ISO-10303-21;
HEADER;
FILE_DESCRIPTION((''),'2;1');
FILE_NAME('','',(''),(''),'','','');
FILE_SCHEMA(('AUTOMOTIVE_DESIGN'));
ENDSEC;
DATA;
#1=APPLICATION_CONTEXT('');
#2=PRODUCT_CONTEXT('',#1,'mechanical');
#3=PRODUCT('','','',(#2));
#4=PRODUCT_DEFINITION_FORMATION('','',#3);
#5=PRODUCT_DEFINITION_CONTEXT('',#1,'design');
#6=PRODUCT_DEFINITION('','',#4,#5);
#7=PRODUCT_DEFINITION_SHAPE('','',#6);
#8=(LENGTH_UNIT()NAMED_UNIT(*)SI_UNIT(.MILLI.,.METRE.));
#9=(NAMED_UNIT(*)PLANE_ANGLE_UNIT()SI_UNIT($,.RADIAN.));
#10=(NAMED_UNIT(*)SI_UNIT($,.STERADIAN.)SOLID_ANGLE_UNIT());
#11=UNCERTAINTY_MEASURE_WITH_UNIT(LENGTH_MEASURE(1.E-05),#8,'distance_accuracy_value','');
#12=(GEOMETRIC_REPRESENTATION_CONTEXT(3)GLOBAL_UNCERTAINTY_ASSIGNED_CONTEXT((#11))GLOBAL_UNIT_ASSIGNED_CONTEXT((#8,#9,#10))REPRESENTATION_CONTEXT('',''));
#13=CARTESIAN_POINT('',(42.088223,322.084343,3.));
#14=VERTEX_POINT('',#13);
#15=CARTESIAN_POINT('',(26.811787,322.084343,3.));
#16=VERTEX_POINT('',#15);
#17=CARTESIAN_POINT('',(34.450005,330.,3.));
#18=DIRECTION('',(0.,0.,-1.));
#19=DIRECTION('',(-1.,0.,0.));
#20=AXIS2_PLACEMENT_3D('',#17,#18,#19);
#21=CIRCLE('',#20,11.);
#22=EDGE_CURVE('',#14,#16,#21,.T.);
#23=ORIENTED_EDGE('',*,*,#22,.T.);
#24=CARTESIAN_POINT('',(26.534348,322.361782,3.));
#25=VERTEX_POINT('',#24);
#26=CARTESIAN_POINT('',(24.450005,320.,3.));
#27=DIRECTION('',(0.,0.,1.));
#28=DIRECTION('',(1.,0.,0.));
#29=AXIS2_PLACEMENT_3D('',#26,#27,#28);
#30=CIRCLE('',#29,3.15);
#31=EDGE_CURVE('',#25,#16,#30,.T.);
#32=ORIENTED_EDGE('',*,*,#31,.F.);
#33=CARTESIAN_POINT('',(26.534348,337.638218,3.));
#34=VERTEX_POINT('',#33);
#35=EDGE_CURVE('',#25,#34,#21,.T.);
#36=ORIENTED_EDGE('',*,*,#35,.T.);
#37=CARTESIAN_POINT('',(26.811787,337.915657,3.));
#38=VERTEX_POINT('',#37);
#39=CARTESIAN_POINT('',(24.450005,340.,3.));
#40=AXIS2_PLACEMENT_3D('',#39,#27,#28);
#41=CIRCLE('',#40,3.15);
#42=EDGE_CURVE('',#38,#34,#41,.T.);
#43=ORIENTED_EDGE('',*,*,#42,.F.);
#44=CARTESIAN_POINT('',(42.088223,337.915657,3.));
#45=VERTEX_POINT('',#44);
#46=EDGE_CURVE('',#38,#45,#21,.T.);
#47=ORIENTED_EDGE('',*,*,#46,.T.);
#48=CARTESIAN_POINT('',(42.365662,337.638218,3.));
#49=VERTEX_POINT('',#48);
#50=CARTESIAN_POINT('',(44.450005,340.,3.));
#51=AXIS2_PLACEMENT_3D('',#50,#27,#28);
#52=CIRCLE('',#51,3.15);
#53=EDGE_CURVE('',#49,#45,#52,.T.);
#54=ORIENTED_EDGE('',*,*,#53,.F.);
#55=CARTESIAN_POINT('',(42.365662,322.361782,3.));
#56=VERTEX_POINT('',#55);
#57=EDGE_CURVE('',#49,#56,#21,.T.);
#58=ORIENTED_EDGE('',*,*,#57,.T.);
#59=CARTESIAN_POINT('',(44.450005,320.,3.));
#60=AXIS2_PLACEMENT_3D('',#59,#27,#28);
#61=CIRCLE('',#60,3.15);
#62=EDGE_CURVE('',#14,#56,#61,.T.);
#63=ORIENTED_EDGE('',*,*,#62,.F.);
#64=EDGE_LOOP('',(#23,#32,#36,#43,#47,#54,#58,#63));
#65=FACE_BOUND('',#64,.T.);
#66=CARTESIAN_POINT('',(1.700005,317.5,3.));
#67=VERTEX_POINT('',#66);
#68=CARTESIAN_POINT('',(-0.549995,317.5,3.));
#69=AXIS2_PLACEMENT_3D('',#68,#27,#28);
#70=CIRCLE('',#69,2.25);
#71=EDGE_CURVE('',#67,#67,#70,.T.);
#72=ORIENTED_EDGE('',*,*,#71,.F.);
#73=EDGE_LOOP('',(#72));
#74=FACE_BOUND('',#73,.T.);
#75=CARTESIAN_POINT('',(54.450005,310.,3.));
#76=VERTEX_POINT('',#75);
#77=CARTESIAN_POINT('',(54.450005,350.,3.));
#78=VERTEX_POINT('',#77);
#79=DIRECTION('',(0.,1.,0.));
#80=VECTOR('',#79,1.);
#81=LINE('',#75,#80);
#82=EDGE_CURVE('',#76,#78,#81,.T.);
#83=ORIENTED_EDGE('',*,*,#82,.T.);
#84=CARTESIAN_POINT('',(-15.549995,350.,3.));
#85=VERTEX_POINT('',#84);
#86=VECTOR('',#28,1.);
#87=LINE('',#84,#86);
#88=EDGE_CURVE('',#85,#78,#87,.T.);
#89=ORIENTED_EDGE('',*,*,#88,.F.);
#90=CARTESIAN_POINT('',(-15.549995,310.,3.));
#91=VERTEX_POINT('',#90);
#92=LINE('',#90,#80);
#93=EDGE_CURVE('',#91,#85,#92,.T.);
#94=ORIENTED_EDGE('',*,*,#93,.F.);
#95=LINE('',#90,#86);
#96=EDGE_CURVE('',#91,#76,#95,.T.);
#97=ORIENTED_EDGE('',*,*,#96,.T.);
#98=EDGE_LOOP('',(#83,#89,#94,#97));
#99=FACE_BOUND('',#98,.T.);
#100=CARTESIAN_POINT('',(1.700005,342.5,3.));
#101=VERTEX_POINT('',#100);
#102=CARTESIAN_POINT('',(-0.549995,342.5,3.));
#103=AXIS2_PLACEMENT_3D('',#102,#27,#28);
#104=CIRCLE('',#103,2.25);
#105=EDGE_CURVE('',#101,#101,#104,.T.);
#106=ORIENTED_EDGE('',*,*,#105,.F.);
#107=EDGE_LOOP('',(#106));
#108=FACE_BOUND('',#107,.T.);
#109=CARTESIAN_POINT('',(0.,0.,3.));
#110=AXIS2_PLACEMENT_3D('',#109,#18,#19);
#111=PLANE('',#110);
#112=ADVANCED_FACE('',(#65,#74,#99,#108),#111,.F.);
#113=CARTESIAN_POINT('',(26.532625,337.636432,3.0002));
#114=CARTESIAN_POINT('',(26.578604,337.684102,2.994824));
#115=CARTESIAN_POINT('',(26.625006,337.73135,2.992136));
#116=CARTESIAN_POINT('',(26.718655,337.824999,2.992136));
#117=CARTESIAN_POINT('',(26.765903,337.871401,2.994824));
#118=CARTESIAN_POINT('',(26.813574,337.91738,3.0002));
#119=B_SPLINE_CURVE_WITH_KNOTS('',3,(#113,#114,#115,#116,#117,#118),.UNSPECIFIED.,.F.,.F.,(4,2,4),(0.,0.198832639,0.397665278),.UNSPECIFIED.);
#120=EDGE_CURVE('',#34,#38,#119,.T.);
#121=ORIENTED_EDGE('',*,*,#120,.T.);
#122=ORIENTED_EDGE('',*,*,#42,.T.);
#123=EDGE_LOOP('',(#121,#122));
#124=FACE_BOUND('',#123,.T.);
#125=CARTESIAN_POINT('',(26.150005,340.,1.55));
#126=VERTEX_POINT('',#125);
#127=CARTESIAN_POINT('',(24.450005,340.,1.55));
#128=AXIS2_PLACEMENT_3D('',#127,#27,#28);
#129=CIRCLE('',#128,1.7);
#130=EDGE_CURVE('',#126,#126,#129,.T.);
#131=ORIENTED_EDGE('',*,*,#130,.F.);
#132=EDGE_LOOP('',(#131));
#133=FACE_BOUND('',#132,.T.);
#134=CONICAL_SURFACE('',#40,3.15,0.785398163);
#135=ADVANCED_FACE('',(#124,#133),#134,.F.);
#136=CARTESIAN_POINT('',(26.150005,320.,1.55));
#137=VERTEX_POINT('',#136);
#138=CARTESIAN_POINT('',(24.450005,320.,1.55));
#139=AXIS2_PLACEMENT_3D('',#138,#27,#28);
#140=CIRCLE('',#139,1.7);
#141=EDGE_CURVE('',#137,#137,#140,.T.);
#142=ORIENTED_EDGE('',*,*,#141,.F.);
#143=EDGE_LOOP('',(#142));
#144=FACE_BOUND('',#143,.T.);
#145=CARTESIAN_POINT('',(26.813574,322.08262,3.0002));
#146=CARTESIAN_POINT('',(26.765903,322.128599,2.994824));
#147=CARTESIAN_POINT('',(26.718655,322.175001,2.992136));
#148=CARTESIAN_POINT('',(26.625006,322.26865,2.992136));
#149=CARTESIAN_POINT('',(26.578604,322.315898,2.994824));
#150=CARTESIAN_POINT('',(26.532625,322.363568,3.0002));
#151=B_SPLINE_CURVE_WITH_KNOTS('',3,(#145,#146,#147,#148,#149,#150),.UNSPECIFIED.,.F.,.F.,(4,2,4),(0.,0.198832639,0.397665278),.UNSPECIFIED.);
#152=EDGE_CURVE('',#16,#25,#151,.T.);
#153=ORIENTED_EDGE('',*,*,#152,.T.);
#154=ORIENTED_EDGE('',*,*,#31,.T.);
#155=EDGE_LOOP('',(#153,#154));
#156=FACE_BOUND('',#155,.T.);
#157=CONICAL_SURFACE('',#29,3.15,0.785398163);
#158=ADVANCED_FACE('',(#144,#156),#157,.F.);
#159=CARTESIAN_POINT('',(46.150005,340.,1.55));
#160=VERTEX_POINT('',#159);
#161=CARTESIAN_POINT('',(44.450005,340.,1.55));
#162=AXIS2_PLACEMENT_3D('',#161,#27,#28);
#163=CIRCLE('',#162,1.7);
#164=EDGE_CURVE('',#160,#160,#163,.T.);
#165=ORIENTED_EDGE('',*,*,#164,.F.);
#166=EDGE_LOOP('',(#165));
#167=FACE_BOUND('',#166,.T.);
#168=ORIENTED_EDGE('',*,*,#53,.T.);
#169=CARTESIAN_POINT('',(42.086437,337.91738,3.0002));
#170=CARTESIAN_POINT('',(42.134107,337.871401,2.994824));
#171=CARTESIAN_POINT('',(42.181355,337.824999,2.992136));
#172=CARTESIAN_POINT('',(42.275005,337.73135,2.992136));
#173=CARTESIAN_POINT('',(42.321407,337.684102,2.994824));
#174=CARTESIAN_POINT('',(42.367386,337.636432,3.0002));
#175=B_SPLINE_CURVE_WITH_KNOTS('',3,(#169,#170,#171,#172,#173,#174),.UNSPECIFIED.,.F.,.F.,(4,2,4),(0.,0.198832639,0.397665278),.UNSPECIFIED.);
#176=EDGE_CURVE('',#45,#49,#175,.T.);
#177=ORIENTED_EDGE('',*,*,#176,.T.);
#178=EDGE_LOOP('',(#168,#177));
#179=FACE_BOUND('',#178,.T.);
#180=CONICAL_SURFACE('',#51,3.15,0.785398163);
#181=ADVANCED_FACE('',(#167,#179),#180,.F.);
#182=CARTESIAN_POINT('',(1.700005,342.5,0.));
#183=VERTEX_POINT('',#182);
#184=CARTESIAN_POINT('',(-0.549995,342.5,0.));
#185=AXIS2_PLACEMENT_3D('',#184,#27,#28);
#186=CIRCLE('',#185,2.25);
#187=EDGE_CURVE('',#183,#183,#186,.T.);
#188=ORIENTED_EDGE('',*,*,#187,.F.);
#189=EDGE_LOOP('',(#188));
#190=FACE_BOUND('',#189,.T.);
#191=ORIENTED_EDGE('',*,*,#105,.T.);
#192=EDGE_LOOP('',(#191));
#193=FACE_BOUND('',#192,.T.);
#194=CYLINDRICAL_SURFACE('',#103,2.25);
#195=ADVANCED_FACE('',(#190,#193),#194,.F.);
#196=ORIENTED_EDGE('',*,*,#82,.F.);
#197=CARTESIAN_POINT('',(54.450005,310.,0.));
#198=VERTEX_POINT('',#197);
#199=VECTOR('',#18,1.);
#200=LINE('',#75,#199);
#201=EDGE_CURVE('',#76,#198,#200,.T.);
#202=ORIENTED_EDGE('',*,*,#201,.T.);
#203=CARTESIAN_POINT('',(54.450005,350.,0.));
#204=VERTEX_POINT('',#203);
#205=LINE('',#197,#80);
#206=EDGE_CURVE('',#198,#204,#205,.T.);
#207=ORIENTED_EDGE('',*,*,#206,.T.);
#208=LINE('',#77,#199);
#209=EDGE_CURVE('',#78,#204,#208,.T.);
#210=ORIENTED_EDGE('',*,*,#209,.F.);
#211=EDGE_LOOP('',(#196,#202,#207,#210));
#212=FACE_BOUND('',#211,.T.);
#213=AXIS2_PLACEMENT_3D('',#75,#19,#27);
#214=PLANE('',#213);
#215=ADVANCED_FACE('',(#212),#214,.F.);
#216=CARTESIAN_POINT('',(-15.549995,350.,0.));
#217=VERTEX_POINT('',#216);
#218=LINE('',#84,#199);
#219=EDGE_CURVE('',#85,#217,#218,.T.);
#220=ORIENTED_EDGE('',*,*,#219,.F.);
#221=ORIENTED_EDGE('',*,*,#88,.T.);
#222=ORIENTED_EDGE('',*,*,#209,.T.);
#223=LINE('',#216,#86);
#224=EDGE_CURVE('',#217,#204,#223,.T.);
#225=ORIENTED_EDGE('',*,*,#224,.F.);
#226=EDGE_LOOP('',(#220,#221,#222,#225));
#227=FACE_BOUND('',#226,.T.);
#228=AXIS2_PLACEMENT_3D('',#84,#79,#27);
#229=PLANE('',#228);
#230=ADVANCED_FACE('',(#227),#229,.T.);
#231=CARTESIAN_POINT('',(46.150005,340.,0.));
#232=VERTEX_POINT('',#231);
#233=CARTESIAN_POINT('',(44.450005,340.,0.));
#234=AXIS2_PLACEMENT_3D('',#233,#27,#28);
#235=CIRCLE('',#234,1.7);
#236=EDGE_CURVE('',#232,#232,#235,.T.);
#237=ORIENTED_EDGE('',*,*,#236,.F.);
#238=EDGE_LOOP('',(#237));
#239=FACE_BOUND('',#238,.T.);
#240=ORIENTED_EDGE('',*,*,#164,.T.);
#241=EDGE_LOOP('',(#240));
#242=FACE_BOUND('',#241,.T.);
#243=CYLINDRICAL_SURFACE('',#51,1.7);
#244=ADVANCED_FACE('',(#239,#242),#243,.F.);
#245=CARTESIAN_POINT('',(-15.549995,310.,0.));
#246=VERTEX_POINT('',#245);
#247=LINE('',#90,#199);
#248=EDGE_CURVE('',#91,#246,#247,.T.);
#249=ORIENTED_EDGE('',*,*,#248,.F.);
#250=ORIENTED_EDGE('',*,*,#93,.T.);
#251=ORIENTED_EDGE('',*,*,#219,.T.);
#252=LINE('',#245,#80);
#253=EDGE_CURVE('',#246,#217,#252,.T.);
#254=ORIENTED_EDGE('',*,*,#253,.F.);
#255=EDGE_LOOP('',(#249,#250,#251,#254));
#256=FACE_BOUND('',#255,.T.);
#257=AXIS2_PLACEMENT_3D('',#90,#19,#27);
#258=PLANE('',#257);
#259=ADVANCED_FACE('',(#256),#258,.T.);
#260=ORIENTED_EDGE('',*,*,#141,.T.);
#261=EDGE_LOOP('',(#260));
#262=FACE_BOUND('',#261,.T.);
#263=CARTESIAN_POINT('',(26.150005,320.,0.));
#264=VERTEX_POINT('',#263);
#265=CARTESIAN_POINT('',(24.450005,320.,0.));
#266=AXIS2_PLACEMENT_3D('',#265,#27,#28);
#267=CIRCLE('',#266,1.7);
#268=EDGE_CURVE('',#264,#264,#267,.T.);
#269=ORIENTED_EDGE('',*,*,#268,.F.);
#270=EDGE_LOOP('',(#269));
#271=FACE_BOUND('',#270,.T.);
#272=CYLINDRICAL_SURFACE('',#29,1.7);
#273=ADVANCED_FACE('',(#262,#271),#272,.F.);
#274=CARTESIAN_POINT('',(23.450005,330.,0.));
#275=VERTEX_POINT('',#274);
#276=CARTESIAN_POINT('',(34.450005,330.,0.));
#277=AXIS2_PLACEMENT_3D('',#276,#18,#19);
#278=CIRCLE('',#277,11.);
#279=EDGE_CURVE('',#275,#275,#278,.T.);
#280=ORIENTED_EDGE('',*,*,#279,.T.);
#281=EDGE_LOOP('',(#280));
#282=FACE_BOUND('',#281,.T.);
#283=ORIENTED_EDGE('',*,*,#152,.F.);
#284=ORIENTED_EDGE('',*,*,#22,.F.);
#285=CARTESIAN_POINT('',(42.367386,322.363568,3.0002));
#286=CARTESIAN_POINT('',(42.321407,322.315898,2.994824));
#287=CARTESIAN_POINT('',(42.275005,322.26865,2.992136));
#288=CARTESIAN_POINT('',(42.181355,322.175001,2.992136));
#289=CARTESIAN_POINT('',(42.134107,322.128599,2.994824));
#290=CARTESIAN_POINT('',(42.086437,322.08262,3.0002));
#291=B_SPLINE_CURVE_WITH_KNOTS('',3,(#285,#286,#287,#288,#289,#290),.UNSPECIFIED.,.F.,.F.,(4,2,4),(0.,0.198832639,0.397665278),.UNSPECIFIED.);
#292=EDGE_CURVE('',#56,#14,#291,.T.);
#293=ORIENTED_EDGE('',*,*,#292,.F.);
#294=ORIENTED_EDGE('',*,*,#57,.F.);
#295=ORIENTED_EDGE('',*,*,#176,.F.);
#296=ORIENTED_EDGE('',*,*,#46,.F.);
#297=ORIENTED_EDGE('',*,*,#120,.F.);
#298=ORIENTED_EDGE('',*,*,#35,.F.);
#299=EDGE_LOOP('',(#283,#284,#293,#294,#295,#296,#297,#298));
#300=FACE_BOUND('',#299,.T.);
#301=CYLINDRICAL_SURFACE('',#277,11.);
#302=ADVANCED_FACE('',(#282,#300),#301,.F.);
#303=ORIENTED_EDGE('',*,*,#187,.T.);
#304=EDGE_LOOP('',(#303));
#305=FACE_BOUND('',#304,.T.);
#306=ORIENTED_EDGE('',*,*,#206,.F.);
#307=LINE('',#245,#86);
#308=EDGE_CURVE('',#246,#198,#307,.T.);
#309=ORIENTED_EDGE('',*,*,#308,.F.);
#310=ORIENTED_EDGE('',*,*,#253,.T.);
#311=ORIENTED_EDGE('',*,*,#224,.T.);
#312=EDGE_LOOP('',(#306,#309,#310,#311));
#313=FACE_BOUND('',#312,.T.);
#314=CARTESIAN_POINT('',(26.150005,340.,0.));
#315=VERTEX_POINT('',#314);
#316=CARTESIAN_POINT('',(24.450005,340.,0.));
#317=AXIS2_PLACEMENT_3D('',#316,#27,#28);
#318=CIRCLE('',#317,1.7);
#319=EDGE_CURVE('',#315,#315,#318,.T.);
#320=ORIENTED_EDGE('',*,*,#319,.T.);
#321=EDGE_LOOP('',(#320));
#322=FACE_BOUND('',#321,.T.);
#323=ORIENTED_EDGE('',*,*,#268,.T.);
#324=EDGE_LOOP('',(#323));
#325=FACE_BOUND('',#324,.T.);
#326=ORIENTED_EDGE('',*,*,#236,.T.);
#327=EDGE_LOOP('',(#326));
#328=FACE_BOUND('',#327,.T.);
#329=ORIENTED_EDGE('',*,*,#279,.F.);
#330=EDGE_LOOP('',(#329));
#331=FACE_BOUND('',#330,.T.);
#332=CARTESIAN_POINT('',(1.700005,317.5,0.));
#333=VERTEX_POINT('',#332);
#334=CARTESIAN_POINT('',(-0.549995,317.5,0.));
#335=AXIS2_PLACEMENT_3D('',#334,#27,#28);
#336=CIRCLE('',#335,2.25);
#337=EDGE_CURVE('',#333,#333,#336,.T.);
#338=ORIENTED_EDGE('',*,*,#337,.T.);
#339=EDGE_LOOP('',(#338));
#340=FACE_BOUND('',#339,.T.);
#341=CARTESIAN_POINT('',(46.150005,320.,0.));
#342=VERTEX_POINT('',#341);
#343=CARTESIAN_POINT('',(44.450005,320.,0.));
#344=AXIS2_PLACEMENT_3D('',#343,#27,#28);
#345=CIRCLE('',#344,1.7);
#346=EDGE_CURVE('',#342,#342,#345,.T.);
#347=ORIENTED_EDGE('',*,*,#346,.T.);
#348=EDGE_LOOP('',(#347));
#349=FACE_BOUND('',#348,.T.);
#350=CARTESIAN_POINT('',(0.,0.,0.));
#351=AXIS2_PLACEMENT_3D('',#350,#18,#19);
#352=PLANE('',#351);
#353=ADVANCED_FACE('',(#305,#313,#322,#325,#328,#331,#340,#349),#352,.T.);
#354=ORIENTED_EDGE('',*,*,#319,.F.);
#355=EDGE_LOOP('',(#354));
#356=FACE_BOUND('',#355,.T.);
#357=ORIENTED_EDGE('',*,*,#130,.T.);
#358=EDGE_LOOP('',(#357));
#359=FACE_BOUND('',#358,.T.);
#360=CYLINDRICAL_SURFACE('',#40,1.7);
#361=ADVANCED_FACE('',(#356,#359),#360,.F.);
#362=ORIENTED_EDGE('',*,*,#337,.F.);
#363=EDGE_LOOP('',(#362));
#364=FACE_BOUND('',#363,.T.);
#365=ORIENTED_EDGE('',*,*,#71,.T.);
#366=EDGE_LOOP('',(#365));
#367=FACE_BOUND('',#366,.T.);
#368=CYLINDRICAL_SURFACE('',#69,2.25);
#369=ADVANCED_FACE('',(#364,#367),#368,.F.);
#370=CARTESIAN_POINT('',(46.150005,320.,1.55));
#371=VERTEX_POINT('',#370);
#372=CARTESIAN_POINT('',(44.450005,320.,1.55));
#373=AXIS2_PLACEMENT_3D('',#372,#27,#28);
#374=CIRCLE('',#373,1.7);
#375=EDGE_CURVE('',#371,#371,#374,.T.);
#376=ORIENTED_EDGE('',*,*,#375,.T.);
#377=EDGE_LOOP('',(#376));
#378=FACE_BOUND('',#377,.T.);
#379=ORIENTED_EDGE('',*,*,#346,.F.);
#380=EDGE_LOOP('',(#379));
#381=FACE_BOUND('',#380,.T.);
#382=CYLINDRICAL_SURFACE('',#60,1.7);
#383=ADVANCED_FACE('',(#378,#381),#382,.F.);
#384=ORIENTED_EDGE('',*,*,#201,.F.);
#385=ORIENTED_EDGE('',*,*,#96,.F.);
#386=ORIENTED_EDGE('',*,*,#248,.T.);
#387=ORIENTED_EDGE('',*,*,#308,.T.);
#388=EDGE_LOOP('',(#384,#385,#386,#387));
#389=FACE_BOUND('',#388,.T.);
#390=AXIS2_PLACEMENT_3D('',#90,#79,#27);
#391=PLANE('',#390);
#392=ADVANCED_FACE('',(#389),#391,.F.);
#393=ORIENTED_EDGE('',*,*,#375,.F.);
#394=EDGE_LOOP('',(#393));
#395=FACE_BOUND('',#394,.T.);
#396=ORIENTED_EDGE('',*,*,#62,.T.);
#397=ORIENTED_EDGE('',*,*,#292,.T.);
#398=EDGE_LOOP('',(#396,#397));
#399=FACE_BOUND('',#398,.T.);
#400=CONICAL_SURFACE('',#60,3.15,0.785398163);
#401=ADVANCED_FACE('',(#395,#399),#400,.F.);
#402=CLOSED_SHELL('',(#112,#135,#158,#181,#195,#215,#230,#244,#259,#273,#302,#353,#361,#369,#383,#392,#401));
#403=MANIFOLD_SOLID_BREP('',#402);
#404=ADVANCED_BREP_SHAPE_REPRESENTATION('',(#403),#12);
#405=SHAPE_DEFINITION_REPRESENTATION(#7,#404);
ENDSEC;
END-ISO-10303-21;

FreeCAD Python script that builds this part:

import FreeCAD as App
import Part
import Sketcher
from FreeCAD import Vector
Q = App.Units.Quantity

doc = App.newDocument("Part")
body = doc.addObject("PartDesign::Body", "Body")

# Sketch on XY plane
sketch1 = body.newObject("Sketcher::SketchObject", "Sketch")
sketch1.AttachmentSupport = (doc.getObject("XY_Plane"), [""])
sketch1.MapMode = "FlatFace"
sketch1.addGeometry([
    Part.LineSegment(Vector(-16, 350, 0), Vector(-16, 310, 0)),
    Part.LineSegment(Vector(-16, 310, 0), Vector(54, 310, 0)),
    Part.LineSegment(Vector(54, 310, 0), Vector(54, 350, 0)),
    Part.LineSegment(Vector(54, 350, 0), Vector(-16, 350, 0)),
], False)
sketch1.addConstraint([
    Sketcher.Constraint("Coincident", 0, 2, 1, 1),
    Sketcher.Constraint("Coincident", 1, 2, 2, 1),
    Sketcher.Constraint("Coincident", 2, 2, 3, 1),
    Sketcher.Constraint("Coincident", 3, 2, 0, 1),
    Sketcher.Constraint("Vertical", 0),
    Sketcher.Constraint("Horizontal", 1),
    Sketcher.Constraint("Vertical", 2),
    Sketcher.Constraint("Horizontal", 3),
    Sketcher.Constraint("DistanceX", 1, 1, 1, 2, Q("70 mm")),
    Sketcher.Constraint("DistanceY", 0, 2, 0, 1, Q("40 mm")),
    Sketcher.Constraint("DistanceY", -1, 1, 0, 2, Q("310 mm")),
    Sketcher.Constraint("DistanceX", 0, 2, -1, 1, Q("15.549995 mm")),
])
pad1 = body.newObject("PartDesign::Pad", "Pad")
pad1.Profile = sketch1
pad1.Length = 3

# Sketch on YZ plane
sketch2 = body.newObject("Sketcher::SketchObject", "Sketch001")
sketch2.AttachmentSupport = (doc.getObject("YZ_Plane"), [""])
sketch2.MapMode = "FlatFace"
sketch2.AttachmentOffset = App.Placement(Vector(0, 0, 24.450005), App.Rotation())
sketch2.addGeometry([
    Part.LineSegment(Vector(340, 0, 0), Vector(340, 3, 0)),  # 0
    Part.LineSegment(Vector(340, 3, 0), Vector(336.9, 3, 0)),  # 1
    Part.LineSegment(Vector(336.9, 3, 0), Vector(338.3, 1.6, 0)),  # 2
    Part.LineSegment(Vector(338.3, 1.6, 0), Vector(338.3, 0, 0)),  # 3
    Part.LineSegment(Vector(338.3, 0, 0), Vector(340, 0, 0)),  # 4
], False)
sketch2.addGeometry(Part.LineSegment(Vector(340, 3, 0), Vector(340, 0, 0)), True)  # axis
sketch2.addConstraint([
    Sketcher.Constraint("Coincident", 0, 2, 1, 1),
    Sketcher.Constraint("Coincident", 1, 2, 2, 1),
    Sketcher.Constraint("Coincident", 2, 2, 3, 1),
    Sketcher.Constraint("Coincident", 3, 2, 4, 1),
    Sketcher.Constraint("Coincident", 4, 2, 0, 1),
    Sketcher.Constraint("Vertical", 0),
    Sketcher.Constraint("Horizontal", 1),
    Sketcher.Constraint("Vertical", 3),
    Sketcher.Constraint("Horizontal", 4),
    Sketcher.Constraint("Vertical", 5),
    Sketcher.Constraint("Coincident", 5, 1, 0, 2),
    Sketcher.Constraint("PointOnObject", 3, 2, -1),
    Sketcher.Constraint("PointOnObject", 5, 2, -1),
    Sketcher.Constraint("DistanceY", 0, 1, 0, 2, Q("3 mm")),
    Sketcher.Constraint("Angle", 2, Q("-45 deg")),
    Sketcher.Constraint("DistanceX", 4, 1, 4, 2, Q("1.7 mm")),
    Sketcher.Constraint("DistanceX", -1, 1, 0, 2, Q("340 mm")),
    Sketcher.Constraint("DistanceX", 1, 2, 1, 1, Q("3.15 mm")),
])
groove = body.newObject("PartDesign::Groove", "Groove")
groove.Profile = sketch2
groove.ReferenceAxis = (sketch2, ["Axis0"])
groove.Angle = 360
doc.recompute()

linearpattern = body.newObject("PartDesign::LinearPattern", "LinearPattern")
linearpattern.Originals = [groove]
linearpattern.Direction = (doc.getObject("X_Axis"), [""])
linearpattern.Mode = "offset"
linearpattern.Offset = 20
linearpattern.Occurrences = 2
body.Tip = linearpattern
doc.recompute()

datumline = body.newObject("PartDesign::Line", "DatumLine")
datumline.Placement = App.Placement(Vector(0, 0, 0), App.Rotation(Vector(0, 0, 1), Vector(0.707106781, -0.707106781, 0)))
linearpattern2 = body.newObject("PartDesign::LinearPattern", "LinearPattern001")
linearpattern2.Originals = [groove]
linearpattern2.Direction = (datumline, [""])
linearpattern2.Mode = "offset"
linearpattern2.Offset = 28.284271
linearpattern2.Occurrences = 2
body.Tip = linearpattern2
doc.recompute()

linearpattern3 = body.newObject("PartDesign::LinearPattern", "LinearPattern002")
linearpattern3.Originals = [groove]
linearpattern3.Direction = (doc.getObject("Y_Axis"), [""])
linearpattern3.Mode = "offset"
linearpattern3.Offset = 20
linearpattern3.Occurrences = 2
linearpattern3.Reversed = True
body.Tip = linearpattern3

# Sketch on XY plane
sketch3 = body.newObject("Sketcher::SketchObject", "Sketch002")
sketch3.AttachmentSupport = (doc.getObject("XY_Plane"), [""])
sketch3.MapMode = "FlatFace"
sketch3.AttachmentOffset = App.Placement(Vector(0, 0, 3), App.Rotation())
sketch3.addGeometry([
    Part.Circle(Vector(-0.5, 342.5, 0), Vector(0, 0, 1), 2.2),
    Part.Circle(Vector(-0.5, 317.5, 0), Vector(0, 0, 1), 2.2),
], False)
sketch3.addConstraint([
    Sketcher.Constraint("Equal", 0, 1),
    Sketcher.Constraint("Vertical", 0, 3, 1, 3),
    Sketcher.Constraint("Diameter", 0, Q("4.5 mm")),
    Sketcher.Constraint("DistanceY", 1, 3, 0, 3, Q("25 mm")),
    Sketcher.Constraint("DistanceY", -1, 1, 0, 3, Q("342.5 mm")),
    Sketcher.Constraint("DistanceX", 0, 3, -1, 1, Q("0.549995 mm")),
])
doc.recompute()
hole = body.newObject("PartDesign::Hole", "Hole")
hole.Profile = sketch3
hole.ThreadType = "None"
hole.Diameter = 4.5
hole.DepthType = "ThroughAll"

# Sketch on XY plane
sketch4 = body.newObject("Sketcher::SketchObject", "Sketch003")
sketch4.AttachmentSupport = (doc.getObject("XY_Plane"), [""])
sketch4.MapMode = "FlatFace"
sketch4.addGeometry(Part.Circle(Vector(34, 330, 0), Vector(0, 0, 1), 11), False)
sketch4.addConstraint([
    Sketcher.Constraint("Diameter", 0, Q("22 mm")),
    Sketcher.Constraint("DistanceY", -1, 1, 0, 3, Q("330 mm")),
    Sketcher.Constraint("DistanceX", -1, 1, 0, 3, Q("34.450005 mm")),
])
doc.recompute()
hole2 = body.newObject("PartDesign::Hole", "Hole001")
hole2.Profile = sketch4
hole2.ThreadType = "None"
hole2.Diameter = 22
hole2.DepthType = "ThroughAll"
hole2.Reversed = True

doc.recompute()
